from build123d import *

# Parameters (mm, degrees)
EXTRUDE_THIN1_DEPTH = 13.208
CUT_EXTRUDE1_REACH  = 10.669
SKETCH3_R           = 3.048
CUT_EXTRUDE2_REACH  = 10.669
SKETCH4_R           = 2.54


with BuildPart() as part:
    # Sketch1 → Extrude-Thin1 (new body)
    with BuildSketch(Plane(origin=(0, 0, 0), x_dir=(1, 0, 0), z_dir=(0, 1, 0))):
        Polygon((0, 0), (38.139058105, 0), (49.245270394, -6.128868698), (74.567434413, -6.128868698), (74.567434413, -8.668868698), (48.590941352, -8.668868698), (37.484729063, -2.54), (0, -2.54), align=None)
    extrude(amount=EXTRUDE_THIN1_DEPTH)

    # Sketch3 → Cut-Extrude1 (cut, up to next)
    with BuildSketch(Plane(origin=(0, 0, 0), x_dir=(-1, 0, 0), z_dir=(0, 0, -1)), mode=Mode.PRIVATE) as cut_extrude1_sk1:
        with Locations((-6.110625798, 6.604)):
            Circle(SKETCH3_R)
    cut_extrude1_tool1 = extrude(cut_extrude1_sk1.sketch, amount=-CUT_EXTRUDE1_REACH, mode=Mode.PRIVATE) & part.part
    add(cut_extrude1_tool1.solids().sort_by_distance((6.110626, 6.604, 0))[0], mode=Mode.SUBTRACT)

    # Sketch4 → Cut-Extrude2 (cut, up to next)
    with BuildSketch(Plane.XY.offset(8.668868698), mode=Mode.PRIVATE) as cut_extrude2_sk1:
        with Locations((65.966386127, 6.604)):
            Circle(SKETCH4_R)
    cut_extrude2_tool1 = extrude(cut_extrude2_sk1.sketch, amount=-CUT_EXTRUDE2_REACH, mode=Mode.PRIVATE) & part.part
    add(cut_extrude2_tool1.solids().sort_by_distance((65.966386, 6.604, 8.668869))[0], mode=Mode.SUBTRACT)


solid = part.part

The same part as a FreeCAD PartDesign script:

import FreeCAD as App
import Part
import Sketcher
Q = App.Units.Quantity

doc = App.newDocument("Part")
body = doc.addObject("PartDesign::Body", "Body")

# Sketch on XZ plane
sketch1 = body.newObject("Sketcher::SketchObject", "Sketch")
sketch1.AttachmentSupport = (doc.getObject("XZ_Plane"), [""])
sketch1.MapMode = "FlatFace"
sketch1.addGeometry(Part.LineSegment(App.Vector(38.1, 0, 0), App.Vector(0, 0, 0)), False)
sketch1.addGeometry(Part.LineSegment(App.Vector(0, 0, 0), App.Vector(0, 2.5, 0)), False)
sketch1.addGeometry(Part.LineSegment(App.Vector(0, 2.5, 0), App.Vector(37.5, 2.5, 0)), False)
sketch1.addGeometry(Part.LineSegment(App.Vector(37.5, 2.5, 0), App.Vector(48.6, 8.7, 0)), False)
sketch1.addGeometry(Part.LineSegment(App.Vector(48.6, 8.7, 0), App.Vector(74.6, 8.7, 0)), False)
sketch1.addGeometry(Part.LineSegment(App.Vector(74.6, 8.7, 0), App.Vector(74.6, 6.1, 0)), False)
sketch1.addGeometry(Part.LineSegment(App.Vector(74.6, 6.1, 0), App.Vector(49.2, 6.1, 0)), False)
sketch1.addGeometry(Part.LineSegment(App.Vector(49.2, 6.1, 0), App.Vector(38.1, 0, 0)), False)
sketch1.addConstraint(Sketcher.Constraint("Coincident", 0, 2, 1, 1))
sketch1.addConstraint(Sketcher.Constraint("Coincident", 1, 2, 2, 1))
sketch1.addConstraint(Sketcher.Constraint("Coincident", 2, 2, 3, 1))
sketch1.addConstraint(Sketcher.Constraint("Coincident", 3, 2, 4, 1))
sketch1.addConstraint(Sketcher.Constraint("Coincident", 4, 2, 5, 1))
sketch1.addConstraint(Sketcher.Constraint("Coincident", 5, 2, 6, 1))
sketch1.addConstraint(Sketcher.Constraint("Coincident", 6, 2, 7, 1))
sketch1.addConstraint(Sketcher.Constraint("Coincident", 7, 2, 0, 1))
sketch1.addConstraint(Sketcher.Constraint("Horizontal", 0))
sketch1.addConstraint(Sketcher.Constraint("Vertical", 1))
sketch1.addConstraint(Sketcher.Constraint("Horizontal", 2))
sketch1.addConstraint(Sketcher.Constraint("Horizontal", 4))
sketch1.addConstraint(Sketcher.Constraint("Vertical", 5))
sketch1.addConstraint(Sketcher.Constraint("Horizontal", 6))
sketch1.addConstraint(Sketcher.Constraint("Coincident", 0, 2, -1, 1))
sketch1.addConstraint(Sketcher.Constraint("Parallel", 3, 7))
sketch1.addConstraint(Sketcher.Constraint("Equal", 1, 5))
sketch1.addConstraint(Sketcher.Constraint("DistanceY", 1, 1, 1, 2, Q("0.1 in")))
sketch1.addConstraint(Sketcher.Constraint("DistanceX", 0, 2, 0, 1, Q("38.139058 mm")))
sketch1.addConstraint(Sketcher.Constraint("DistanceX", 2, 1, 2, 2, Q("37.484729 mm")))
sketch1.addConstraint(Sketcher.Constraint("Distance", 3, Q("12.685069 mm")))
sketch1.addConstraint(Sketcher.Constraint("DistanceX", 4, 1, 4, 2, Q("25.976493 mm")))
sketch1.addConstraint(Sketcher.Constraint("DistanceX", -1, 1, 3, 2, Q("48.590941 mm")))
pad1 = body.newObject("PartDesign::Pad", "Pad")
pad1.Profile = sketch1
pad1.Length = Q("0.52 in")
pad1.Reversed = True

# Sketch on XY plane
sketch2 = body.newObject("Sketcher::SketchObject", "Sketch001")
sketch2.AttachmentSupport = (doc.getObject("XY_Plane"), [""])
sketch2.MapMode = "FlatFace"
sketch2.addGeometry(Part.Circle(App.Vector(6.1, 6.6, 0), App.Vector(0, 0, 1), 3), False)
sketch2.addConstraint(Sketcher.Constraint("Diameter", 0, Q("0.24 in")))
sketch2.addConstraint(Sketcher.Constraint("DistanceY", -1, 1, 0, 3, Q("0.26 in")))
sketch2.addConstraint(Sketcher.Constraint("DistanceX", -1, 1, 0, 3, Q("6.110626 mm")))
pocket1 = body.newObject("PartDesign::Pocket", "Pocket")
pocket1.Profile = sketch2
pocket1.Type = "UpToFirst"
pocket1.Reversed = True

# Sketch on XY plane
sketch3 = body.newObject("Sketcher::SketchObject", "Sketch002")
sketch3.AttachmentSupport = (doc.getObject("XY_Plane"), [""])
sketch3.MapMode = "FlatFace"
sketch3.AttachmentOffset = App.Placement(App.Vector(0, 0, 8.668869), App.Rotation())
sketch3.addGeometry(Part.Circle(App.Vector(66, 6.6, 0), App.Vector(0, 0, 1), 2.5), False)
sketch3.addConstraint(Sketcher.Constraint("Diameter", 0, Q("0.2 in")))
sketch3.addConstraint(Sketcher.Constraint("DistanceY", -1, 1, 0, 3, Q("0.26 in")))
sketch3.addConstraint(Sketcher.Constraint("DistanceX", -1, 1, 0, 3, Q("65.966386 mm")))
pocket2 = body.newObject("PartDesign::Pocket", "Pocket001")
pocket2.Profile = sketch3
pocket2.Type = "UpToFirst"

doc.recompute()
